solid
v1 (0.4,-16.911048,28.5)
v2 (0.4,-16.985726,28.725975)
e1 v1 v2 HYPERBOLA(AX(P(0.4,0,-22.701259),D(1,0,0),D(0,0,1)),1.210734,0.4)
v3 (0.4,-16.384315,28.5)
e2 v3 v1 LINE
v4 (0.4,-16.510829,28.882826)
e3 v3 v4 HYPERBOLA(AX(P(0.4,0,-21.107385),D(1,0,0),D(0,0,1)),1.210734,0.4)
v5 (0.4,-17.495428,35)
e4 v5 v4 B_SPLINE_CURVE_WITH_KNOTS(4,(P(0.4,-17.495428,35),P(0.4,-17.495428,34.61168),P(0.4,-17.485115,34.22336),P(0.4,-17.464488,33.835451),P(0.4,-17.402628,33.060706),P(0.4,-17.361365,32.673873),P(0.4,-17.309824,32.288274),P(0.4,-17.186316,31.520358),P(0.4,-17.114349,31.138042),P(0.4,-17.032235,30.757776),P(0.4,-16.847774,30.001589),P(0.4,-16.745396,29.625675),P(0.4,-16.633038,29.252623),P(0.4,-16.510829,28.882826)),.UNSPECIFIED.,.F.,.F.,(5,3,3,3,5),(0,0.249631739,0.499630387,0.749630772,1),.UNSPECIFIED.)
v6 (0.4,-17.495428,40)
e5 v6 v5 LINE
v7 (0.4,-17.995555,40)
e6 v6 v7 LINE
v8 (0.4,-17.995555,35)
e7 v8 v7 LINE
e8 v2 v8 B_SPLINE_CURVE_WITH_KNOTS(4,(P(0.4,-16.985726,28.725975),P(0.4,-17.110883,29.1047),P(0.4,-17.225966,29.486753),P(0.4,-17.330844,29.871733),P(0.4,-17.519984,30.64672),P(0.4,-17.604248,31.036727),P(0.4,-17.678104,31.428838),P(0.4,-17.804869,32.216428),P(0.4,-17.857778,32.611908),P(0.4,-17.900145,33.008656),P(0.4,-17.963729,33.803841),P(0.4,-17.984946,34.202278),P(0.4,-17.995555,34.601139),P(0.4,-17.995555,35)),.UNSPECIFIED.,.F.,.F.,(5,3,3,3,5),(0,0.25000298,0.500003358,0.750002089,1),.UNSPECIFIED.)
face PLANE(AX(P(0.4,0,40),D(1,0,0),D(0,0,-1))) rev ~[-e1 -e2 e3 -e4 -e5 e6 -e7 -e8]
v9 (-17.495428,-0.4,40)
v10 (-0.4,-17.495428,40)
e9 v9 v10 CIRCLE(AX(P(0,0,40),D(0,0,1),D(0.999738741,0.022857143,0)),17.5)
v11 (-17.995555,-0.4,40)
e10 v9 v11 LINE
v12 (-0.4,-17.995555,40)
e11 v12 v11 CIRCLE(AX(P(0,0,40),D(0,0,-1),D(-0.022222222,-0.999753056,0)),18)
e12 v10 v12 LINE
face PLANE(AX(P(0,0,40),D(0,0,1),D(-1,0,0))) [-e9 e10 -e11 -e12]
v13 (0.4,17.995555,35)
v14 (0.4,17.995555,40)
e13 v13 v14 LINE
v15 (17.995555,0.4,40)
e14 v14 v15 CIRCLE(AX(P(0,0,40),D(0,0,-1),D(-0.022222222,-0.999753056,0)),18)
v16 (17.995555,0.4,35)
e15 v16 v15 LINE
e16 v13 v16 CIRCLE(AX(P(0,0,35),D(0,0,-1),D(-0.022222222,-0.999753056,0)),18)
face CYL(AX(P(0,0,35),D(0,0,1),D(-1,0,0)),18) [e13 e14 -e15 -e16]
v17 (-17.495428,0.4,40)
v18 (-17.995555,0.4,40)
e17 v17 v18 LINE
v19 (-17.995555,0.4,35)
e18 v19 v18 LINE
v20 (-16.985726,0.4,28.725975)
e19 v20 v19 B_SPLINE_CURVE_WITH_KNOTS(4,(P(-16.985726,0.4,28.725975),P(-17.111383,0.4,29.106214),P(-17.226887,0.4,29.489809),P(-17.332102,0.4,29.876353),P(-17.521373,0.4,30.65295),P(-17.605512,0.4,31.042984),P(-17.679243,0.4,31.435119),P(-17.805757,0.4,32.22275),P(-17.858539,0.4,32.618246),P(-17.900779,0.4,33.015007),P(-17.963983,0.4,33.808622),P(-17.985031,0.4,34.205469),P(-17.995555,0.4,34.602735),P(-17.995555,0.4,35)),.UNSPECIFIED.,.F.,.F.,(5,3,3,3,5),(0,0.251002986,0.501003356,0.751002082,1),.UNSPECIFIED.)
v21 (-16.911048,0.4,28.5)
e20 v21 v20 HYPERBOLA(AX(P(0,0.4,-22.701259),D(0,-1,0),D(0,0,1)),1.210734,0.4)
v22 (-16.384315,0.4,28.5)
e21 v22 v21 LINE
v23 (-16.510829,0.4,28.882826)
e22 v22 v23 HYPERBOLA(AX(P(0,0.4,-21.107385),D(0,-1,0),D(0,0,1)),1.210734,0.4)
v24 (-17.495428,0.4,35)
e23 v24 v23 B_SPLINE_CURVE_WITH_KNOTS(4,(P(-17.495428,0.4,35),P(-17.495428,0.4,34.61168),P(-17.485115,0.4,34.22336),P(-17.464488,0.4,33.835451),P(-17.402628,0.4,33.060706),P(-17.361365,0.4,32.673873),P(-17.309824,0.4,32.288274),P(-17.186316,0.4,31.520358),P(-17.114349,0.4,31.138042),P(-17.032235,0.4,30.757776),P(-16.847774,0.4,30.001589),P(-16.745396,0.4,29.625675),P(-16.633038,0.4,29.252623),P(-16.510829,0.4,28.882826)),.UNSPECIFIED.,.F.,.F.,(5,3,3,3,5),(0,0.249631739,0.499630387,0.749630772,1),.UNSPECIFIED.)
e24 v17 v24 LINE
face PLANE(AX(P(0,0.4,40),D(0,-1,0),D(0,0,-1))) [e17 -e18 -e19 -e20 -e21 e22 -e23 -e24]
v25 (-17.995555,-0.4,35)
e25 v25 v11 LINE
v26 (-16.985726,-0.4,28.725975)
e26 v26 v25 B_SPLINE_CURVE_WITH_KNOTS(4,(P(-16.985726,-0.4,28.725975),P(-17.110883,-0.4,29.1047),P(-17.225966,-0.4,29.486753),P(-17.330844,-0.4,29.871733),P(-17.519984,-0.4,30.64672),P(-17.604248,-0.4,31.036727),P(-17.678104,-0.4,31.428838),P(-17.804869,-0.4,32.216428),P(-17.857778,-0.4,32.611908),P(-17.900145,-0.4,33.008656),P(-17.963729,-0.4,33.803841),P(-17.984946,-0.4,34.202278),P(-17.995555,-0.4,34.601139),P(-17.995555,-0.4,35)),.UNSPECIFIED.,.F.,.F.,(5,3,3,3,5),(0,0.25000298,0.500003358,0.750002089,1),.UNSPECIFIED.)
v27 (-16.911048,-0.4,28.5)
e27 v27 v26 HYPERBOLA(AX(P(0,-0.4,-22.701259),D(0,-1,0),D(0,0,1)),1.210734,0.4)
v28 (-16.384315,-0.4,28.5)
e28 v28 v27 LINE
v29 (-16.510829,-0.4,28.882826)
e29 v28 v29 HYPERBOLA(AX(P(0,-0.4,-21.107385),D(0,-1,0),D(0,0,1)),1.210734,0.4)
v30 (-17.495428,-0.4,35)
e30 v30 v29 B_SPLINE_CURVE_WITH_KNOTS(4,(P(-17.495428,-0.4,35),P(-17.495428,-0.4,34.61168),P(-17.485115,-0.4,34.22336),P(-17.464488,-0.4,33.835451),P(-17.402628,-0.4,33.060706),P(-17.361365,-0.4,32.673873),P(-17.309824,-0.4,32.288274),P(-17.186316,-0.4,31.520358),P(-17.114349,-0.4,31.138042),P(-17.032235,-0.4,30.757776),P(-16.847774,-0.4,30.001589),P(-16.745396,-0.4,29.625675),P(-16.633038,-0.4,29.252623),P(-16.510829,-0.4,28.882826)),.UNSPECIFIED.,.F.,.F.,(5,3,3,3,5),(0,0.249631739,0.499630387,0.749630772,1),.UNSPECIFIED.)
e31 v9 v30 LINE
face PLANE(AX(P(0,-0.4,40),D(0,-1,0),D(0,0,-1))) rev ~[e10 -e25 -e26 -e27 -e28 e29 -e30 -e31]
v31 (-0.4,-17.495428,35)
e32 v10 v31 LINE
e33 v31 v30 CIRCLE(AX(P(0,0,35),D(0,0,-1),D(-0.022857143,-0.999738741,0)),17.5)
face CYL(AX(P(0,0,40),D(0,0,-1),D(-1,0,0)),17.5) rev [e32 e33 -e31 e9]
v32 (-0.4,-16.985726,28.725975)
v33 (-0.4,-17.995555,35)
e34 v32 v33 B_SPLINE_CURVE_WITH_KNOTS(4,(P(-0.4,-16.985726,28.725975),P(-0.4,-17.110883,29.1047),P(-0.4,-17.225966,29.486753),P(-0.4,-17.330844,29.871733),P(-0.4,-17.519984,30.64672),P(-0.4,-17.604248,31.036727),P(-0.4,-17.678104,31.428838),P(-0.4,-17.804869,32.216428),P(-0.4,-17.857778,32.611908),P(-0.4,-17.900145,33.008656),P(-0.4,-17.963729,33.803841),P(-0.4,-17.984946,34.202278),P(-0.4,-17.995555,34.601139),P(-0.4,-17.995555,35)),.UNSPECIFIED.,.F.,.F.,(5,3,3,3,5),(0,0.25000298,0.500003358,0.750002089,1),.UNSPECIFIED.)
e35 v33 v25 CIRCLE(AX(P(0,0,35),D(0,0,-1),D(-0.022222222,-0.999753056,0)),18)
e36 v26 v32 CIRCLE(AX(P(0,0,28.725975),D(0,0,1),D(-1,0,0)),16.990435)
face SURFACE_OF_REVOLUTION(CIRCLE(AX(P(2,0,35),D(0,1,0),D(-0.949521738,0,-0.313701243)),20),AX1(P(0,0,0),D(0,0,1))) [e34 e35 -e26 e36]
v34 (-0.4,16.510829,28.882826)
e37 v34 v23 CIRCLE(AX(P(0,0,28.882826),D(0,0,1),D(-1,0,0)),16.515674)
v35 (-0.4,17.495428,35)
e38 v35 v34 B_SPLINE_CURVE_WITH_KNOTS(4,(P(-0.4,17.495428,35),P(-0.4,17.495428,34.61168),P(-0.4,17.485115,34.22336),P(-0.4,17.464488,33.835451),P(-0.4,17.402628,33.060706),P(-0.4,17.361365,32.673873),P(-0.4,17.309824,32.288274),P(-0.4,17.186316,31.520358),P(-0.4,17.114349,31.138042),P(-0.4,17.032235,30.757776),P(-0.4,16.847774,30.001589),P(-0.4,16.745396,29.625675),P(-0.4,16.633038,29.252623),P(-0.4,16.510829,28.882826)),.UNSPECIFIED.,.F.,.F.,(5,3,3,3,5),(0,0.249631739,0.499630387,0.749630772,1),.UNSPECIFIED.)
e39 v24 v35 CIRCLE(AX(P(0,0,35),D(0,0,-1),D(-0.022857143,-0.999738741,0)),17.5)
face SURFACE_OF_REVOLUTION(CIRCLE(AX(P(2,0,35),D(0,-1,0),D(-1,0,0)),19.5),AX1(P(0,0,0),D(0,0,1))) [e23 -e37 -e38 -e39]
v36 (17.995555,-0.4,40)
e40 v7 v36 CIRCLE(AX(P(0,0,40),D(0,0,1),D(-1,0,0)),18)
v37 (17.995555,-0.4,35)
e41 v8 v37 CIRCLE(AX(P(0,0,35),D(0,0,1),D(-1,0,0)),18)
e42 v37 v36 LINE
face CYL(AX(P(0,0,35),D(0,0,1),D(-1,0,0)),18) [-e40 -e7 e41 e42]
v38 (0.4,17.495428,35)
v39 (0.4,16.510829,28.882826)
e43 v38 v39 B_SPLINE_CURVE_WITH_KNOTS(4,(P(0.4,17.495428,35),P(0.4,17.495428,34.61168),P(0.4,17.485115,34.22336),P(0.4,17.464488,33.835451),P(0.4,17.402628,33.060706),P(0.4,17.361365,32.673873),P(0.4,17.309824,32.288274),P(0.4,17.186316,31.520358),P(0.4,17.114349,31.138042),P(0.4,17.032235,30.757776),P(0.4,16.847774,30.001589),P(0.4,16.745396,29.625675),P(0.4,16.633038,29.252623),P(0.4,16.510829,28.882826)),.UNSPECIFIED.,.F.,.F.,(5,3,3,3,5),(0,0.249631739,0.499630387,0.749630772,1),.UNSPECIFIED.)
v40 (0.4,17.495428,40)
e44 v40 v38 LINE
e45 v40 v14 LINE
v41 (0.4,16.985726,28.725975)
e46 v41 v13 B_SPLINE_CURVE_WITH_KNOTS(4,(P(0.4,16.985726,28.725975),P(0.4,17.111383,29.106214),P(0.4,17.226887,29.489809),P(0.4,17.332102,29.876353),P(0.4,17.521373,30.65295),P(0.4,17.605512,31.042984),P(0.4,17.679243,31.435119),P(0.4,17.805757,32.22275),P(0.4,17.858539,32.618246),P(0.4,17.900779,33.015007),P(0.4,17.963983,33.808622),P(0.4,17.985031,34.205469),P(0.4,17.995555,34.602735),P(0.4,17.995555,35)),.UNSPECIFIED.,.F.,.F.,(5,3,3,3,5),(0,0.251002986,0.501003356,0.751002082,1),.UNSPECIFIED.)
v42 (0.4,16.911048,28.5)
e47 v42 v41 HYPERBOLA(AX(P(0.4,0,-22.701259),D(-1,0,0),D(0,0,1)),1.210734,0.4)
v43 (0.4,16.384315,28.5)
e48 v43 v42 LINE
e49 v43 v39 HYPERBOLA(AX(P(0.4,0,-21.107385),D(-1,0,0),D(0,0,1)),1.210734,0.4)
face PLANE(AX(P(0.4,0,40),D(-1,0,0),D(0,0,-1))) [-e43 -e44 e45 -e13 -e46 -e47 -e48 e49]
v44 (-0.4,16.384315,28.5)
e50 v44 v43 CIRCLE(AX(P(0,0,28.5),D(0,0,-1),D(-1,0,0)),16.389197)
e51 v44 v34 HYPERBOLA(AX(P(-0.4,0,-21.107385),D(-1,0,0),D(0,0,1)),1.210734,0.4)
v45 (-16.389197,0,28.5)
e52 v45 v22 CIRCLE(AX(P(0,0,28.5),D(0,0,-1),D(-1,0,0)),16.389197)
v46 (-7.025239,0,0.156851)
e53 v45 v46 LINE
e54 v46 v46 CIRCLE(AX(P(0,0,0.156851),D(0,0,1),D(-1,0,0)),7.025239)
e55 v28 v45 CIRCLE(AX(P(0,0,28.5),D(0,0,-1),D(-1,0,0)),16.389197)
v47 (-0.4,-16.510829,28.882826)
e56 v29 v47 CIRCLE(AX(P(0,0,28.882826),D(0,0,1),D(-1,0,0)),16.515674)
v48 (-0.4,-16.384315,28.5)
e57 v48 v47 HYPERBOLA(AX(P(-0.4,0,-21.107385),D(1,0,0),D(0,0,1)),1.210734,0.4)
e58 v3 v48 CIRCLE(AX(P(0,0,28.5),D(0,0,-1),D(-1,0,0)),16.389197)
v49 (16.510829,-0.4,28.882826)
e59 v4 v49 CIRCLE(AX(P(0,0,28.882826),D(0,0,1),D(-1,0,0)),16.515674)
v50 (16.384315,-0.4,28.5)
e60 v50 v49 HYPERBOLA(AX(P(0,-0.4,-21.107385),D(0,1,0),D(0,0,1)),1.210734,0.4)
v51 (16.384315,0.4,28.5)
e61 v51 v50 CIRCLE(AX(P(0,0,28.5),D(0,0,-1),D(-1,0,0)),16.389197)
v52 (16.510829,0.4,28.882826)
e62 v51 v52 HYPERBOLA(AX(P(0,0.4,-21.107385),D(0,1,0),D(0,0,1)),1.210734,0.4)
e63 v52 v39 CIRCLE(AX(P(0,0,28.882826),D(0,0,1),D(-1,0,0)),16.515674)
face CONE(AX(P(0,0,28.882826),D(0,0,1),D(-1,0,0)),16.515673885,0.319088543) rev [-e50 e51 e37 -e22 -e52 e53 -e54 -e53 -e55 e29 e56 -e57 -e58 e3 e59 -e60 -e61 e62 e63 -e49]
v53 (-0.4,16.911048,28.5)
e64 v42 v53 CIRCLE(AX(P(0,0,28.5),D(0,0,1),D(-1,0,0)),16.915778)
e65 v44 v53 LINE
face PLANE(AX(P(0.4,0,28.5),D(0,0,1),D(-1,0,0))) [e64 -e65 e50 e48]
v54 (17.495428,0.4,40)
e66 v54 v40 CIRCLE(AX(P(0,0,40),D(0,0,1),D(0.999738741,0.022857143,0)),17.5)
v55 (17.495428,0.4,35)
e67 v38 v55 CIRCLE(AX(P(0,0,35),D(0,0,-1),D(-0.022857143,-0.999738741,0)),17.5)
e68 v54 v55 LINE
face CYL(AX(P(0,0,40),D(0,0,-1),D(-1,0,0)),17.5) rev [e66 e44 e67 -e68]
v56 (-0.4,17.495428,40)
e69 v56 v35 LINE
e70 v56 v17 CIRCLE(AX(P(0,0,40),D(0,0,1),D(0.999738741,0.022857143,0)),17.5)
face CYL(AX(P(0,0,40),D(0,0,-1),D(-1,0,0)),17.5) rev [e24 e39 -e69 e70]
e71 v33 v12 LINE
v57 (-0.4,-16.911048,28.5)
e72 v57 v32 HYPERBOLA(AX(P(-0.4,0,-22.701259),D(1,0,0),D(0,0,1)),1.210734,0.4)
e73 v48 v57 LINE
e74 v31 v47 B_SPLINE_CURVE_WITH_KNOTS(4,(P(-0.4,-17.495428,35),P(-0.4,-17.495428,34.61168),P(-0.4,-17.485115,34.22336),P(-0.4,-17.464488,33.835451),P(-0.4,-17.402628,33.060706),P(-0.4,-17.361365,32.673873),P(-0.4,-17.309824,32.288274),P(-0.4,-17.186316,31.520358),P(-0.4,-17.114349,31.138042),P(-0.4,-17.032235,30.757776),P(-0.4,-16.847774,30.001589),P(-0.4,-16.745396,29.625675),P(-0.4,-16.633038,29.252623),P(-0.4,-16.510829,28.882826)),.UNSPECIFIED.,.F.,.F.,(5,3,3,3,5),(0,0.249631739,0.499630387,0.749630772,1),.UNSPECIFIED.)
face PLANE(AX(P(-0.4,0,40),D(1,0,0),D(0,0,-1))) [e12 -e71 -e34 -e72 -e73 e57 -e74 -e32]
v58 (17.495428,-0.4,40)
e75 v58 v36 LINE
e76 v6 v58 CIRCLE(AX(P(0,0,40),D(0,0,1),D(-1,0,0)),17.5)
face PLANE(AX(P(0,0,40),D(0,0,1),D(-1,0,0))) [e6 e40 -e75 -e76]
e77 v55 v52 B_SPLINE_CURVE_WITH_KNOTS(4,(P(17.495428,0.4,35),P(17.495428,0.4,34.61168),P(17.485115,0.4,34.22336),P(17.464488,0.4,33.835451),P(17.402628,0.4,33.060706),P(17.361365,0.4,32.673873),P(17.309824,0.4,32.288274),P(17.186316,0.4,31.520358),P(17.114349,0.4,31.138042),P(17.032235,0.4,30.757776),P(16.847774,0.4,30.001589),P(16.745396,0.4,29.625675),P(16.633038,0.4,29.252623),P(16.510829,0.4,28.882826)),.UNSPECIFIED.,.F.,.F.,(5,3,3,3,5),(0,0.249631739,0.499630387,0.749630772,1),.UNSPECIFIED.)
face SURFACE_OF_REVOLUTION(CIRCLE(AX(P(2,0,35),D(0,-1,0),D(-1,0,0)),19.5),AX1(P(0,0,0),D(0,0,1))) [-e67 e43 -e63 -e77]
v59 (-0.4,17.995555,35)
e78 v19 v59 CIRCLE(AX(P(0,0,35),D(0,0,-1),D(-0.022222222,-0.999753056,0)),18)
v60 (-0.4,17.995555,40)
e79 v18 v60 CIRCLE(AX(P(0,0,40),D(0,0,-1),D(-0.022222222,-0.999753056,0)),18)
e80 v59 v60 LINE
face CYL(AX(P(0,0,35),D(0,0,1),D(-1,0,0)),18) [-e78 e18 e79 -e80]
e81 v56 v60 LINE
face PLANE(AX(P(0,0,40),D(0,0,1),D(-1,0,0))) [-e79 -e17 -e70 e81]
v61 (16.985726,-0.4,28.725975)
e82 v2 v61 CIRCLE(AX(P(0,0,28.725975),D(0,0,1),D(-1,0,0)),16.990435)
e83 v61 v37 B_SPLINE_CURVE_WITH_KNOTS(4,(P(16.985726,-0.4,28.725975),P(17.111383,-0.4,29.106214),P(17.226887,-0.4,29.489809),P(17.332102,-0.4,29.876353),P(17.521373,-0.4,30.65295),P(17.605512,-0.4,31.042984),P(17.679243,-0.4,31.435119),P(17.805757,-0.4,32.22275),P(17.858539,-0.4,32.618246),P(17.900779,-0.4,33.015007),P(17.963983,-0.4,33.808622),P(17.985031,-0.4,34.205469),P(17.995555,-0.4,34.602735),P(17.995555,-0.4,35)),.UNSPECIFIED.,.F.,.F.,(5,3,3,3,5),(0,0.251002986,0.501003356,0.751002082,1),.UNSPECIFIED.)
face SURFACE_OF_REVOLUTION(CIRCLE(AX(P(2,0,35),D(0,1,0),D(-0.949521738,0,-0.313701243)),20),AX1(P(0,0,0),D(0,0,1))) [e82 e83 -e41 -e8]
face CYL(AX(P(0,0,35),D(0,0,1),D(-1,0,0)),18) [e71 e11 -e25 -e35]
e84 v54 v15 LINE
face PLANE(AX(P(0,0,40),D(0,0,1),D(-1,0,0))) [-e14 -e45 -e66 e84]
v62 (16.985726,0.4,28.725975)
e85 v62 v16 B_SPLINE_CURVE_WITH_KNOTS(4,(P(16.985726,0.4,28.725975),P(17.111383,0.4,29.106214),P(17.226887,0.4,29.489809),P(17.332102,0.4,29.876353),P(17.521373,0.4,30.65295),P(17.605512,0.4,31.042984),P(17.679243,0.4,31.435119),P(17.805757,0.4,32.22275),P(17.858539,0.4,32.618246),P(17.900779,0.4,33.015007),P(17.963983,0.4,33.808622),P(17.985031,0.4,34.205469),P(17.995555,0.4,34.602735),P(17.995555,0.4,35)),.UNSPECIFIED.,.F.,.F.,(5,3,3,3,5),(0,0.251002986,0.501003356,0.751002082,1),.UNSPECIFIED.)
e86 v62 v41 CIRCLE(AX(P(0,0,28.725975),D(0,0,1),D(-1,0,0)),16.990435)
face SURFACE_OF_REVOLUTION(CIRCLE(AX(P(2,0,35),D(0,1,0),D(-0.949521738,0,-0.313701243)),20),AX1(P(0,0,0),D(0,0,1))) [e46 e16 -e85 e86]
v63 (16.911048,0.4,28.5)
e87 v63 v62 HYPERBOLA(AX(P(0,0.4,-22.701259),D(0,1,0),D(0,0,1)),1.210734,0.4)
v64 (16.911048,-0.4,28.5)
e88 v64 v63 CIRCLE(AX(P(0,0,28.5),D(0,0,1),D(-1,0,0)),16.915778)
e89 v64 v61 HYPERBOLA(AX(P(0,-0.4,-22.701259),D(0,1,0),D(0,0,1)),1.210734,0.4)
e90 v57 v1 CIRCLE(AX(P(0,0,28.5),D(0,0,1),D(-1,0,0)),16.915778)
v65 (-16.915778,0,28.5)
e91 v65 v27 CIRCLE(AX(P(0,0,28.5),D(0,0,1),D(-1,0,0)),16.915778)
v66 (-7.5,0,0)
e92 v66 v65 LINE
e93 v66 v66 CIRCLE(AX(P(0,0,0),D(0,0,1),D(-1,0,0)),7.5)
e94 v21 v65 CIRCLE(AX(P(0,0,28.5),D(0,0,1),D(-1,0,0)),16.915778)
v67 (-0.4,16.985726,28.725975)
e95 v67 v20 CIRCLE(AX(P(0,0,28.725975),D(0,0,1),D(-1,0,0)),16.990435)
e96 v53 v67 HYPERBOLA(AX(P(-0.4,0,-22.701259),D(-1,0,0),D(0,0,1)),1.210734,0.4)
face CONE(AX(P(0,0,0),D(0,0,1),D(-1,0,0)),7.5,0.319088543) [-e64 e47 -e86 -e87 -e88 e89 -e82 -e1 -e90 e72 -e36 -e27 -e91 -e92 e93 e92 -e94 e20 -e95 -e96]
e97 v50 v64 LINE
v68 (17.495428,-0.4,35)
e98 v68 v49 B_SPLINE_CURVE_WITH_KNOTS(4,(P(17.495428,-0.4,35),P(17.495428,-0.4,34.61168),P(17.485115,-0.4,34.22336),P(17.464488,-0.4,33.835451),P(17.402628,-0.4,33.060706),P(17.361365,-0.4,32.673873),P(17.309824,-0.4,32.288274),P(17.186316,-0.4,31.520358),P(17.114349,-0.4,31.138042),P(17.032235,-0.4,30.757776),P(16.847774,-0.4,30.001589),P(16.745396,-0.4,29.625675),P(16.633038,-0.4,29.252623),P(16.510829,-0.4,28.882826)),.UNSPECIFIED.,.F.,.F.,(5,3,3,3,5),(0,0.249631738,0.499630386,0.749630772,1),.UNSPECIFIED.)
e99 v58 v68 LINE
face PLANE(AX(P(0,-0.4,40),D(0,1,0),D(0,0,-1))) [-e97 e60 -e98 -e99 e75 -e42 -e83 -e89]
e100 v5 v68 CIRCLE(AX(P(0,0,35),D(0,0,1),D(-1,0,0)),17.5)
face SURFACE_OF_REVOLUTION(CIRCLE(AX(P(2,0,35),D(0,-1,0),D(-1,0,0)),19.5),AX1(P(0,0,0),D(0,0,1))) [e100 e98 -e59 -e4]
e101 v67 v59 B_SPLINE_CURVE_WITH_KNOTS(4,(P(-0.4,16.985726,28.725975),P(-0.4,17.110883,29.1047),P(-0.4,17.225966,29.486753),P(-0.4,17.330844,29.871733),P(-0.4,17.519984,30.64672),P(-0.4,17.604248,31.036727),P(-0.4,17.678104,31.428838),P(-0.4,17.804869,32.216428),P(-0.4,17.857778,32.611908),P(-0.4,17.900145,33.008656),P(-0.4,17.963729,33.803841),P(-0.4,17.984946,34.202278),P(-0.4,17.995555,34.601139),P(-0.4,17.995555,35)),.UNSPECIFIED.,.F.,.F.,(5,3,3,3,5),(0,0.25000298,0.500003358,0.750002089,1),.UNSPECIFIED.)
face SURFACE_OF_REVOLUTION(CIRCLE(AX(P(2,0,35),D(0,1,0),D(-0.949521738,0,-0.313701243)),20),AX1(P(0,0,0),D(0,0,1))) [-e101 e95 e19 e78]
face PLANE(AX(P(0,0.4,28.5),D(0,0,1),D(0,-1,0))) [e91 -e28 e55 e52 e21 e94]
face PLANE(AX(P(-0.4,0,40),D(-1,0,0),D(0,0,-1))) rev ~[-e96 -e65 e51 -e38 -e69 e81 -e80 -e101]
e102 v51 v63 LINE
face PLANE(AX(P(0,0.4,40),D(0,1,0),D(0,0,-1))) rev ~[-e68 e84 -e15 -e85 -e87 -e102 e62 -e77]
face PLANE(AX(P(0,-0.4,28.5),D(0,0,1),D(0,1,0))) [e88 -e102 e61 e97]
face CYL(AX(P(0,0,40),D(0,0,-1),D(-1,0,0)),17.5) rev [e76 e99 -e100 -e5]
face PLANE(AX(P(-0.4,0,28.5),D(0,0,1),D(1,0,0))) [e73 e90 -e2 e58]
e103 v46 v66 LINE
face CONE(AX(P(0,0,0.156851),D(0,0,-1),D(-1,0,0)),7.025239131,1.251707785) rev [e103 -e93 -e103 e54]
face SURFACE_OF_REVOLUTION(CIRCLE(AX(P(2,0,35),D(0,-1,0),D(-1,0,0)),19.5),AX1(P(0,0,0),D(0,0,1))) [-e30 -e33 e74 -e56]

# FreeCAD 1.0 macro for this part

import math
import FreeCAD as App
import Part
import Sketcher
from FreeCAD import Vector


def add_polygon(sketch, points):
    """Adds a closed chain of lines whose ends are joined by coincident constraints."""
    first, n = sketch.GeometryCount, len(points)
    for a, b in zip(points, points[1:] + points[:1]):
        sketch.addGeometry(Part.LineSegment(App.Vector(*a, 0), App.Vector(*b, 0)), False)
    for i in range(n):
        sketch.addConstraint(Sketcher.Constraint("Coincident", first + i, 2, first + (i + 1) % n, 1))

doc = App.newDocument("Part")
body = doc.addObject("PartDesign::Body", "Body")

# Sketch on YZ plane
sketch1 = doc.addObject("Sketcher::SketchObject", "Sketch")
body.addObject(sketch1)
sketch1.AttachmentSupport = (doc.YZ_Plane, [""])
sketch1.MapMode = "FlatFace"
sketch1.addGeometry(Part.LineSegment(Vector(7.5, 0, 0), Vector(17, 28.7, 0)), False)
sketch1.addGeometry(Part.ArcOfCircle(Part.Circle(Vector(-2, 35, 0), Vector(0, 0, 1), 20), math.radians(-18.28), math.radians(0)), False)
sketch1.addGeometry(Part.LineSegment(Vector(18, 35, 0), Vector(18, 40, 0)), False)
sketch1.addGeometry(Part.LineSegment(Vector(18, 40, 0), Vector(17.5, 40, 0)), False)
sketch1.addGeometry(Part.LineSegment(Vector(17.5, 40, 0), Vector(17.5, 35, 0)), False)
sketch1.addGeometry(Part.ArcOfCircle(Part.Circle(Vector(-2, 35, 0), Vector(0, 0, 1), 19.5), math.radians(-18.28), math.radians(0)), False)
sketch1.addGeometry(Part.LineSegment(Vector(16.5, 28.9, 0), Vector(7, 0.2, 0)), False)
sketch1.addGeometry(Part.LineSegment(Vector(7, 0.2, 0), Vector(7.5, 0, 0)), False)
sketch1.addConstraint(Sketcher.Constraint("Tangent", 0, 2, 1, 1))
sketch1.addConstraint(Sketcher.Constraint("Tangent", 1, 2, 2, 1))
sketch1.addConstraint(Sketcher.Constraint("Coincident", 2, 2, 3, 1))
sketch1.addConstraint(Sketcher.Constraint("Coincident", 3, 2, 4, 1))
sketch1.addConstraint(Sketcher.Constraint("Tangent", 4, 2, 5, 2))
sketch1.addConstraint(Sketcher.Constraint("Tangent", 5, 1, 6, 1))
sketch1.addConstraint(Sketcher.Constraint("Coincident", 6, 2, 7, 1))
sketch1.addConstraint(Sketcher.Constraint("Coincident", 7, 2, 0, 1))
sketch1.addConstraint(Sketcher.Constraint("Vertical", 2))
sketch1.addConstraint(Sketcher.Constraint("Horizontal", 3))
sketch1.addConstraint(Sketcher.Constraint("Vertical", 4))
sketch1.addConstraint(Sketcher.Constraint("Coincident", 5, 3, 1, 3))
sketch1.addConstraint(Sketcher.Constraint("PointOnObject", 7, 2, -1))
sketch1.addConstraint(Sketcher.Constraint("Parallel", 0, 6))
sketch1.addConstraint(Sketcher.Constraint("Perpendicular", 6, 7))
sketch1.addConstraint(Sketcher.Constraint("Radius", 1, 20.0))
sketch1.addConstraint(Sketcher.Constraint("Radius", 5, 19.5))
sketch1.addConstraint(Sketcher.Constraint("DistanceY", 2, 1, 2, 2, 5.0))
sketch1.addConstraint(Sketcher.Constraint("DistanceX", 1, 3, -1, 1, 2.0))
sketch1.addConstraint(Sketcher.Constraint("DistanceY", -1, 1, 1, 3, 35.0))
sketch1.addConstraint(Sketcher.Constraint("DistanceX", -1, 1, 7, 2, 7.5))
revolution = doc.addObject("PartDesign::Revolution", "Revolution")
body.addObject(revolution)
revolution.Profile = sketch1
revolution.ReferenceAxis = (sketch1, ["V_Axis"])
revolution.Angle = 360

# Sketch on XZ plane
sketch2 = doc.addObject("Sketcher::SketchObject", "Sketch001")
body.addObject(sketch2)
sketch2.AttachmentSupport = (doc.XZ_Plane, [""])
sketch2.MapMode = "FlatFace"
add_polygon(sketch2, [(-0.4, 28.5), (-0.4, 40), (0.4, 40), (0.4, 28.5)])  # lines 0-3
sketch2.addConstraint(Sketcher.Constraint("Vertical", 0))
sketch2.addConstraint(Sketcher.Constraint("Horizontal", 1))
sketch2.addConstraint(Sketcher.Constraint("Vertical", 2))
sketch2.addConstraint(Sketcher.Constraint("Horizontal", 3))
sketch2.addConstraint(Sketcher.Constraint("DistanceX", 1, 1, 1, 2, 0.8))
sketch2.addConstraint(Sketcher.Constraint("DistanceY", 0, 1, 0, 2, 11.5))
sketch2.addConstraint(Sketcher.Constraint("DistanceY", -1, 1, 0, 2, 40.0))
sketch2.addConstraint(Sketcher.Constraint("DistanceX", 0, 2, -1, 1, 0.4))
pocket1 = doc.addObject("PartDesign::Pocket", "Pocket")
body.addObject(pocket1)
pocket1.Profile = sketch2
pocket1.Type = "ThroughAll"
pocket1.Reversed = True
doc.recompute()

polarpattern = doc.addObject("PartDesign::PolarPattern", "PolarPattern")
body.addObject(polarpattern)
polarpattern.Originals = [pocket1]
polarpattern.Axis = (doc.Z_Axis, [""])
polarpattern.Angle = 360
polarpattern.Occurrences = 4
body.Tip = polarpattern

doc.recompute()
